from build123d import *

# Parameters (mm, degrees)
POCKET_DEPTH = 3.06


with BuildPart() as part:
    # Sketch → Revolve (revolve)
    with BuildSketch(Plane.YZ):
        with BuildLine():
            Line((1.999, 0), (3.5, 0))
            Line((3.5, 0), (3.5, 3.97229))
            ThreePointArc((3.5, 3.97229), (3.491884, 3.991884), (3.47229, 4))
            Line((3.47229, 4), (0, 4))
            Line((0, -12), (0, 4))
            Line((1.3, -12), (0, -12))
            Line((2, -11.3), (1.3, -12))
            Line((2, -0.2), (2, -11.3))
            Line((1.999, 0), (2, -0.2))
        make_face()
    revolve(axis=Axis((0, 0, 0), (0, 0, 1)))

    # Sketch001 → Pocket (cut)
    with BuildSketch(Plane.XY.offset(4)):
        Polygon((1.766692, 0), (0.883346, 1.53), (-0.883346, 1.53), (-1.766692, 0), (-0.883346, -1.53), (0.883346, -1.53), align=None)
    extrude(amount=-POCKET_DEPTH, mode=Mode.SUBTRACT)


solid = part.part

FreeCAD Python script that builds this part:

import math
import FreeCAD as App
import Part
import Sketcher

V = App.Vector
Q = App.Units.Quantity

doc = App.newDocument("Part")
body = doc.addObject("PartDesign::Body", "Body")

sketch1 = doc.addObject("Sketcher::SketchObject", "Sketch")
body.addObject(sketch1)
sketch1.AttachmentSupport = (doc.YZ_Plane, [""])
sketch1.MapMode = "FlatFace"
sketch1.addGeometry([
    Part.LineSegment(V(1.999, 0, 0), V(3.5, 0, 0)),
    Part.LineSegment(V(3.5, 0, 0), V(3.5, 3.972, 0)),
    Part.ArcOfCircle(Part.Circle(V(3.472, 3.972, 0), V(0, 0, 1), 0.028), math.radians(0), math.radians(90)),
    Part.LineSegment(V(3.472, 4, 0), V(0, 4, 0)),
    Part.LineSegment(V(0, 4, 0), V(0, -12, 0)),
    Part.LineSegment(V(0, -12, 0), V(1.3, -12, 0)),
    Part.LineSegment(V(1.3, -12, 0), V(2, -11.3, 0)),
    Part.LineSegment(V(2, -11.3, 0), V(2, -0.2, 0)),
    Part.LineSegment(V(2, -0.2, 0), V(1.999, 0, 0)),
], False)
sketch1.addConstraint([
    Sketcher.Constraint("Coincident", 0, 2, 1, 1),
    Sketcher.Constraint("Coincident", 1, 2, 2, 1),
    Sketcher.Constraint("Coincident", 2, 2, 3, 1),
    Sketcher.Constraint("Coincident", 3, 2, 4, 1),
    Sketcher.Constraint("Coincident", 4, 2, 5, 1),
    Sketcher.Constraint("Coincident", 5, 2, 6, 1),
    Sketcher.Constraint("Coincident", 6, 2, 7, 1),
    Sketcher.Constraint("Coincident", 7, 2, 8, 1),
    Sketcher.Constraint("Coincident", 8, 2, 0, 1),
    Sketcher.Constraint("Horizontal", 0),
    Sketcher.Constraint("Vertical", 1),
    Sketcher.Constraint("Horizontal", 3),
    Sketcher.Constraint("Vertical", 4),
    Sketcher.Constraint("Horizontal", 5),
    Sketcher.Constraint("Vertical", 7),
    Sketcher.Constraint("PointOnObject", 0, 2, -1),
    Sketcher.Constraint("PointOnObject", 3, 2, -2),
    Sketcher.Constraint("Horizontal", 2, 3, 1, 2),
    Sketcher.Constraint("DistanceY", 4, 2, 4, 1, 16.0),
    Sketcher.Constraint("Angle", 6, Q("45 deg")),
    Sketcher.Constraint("DistanceX", 5, 1, 5, 2, 1.3),
    Sketcher.Constraint("DistanceY", 7, 1, 7, 2, 11.1),
    Sketcher.Constraint("DistanceY", -1, 1, 2, 2, 4.0),
    Sketcher.Constraint("DistanceX", -1, 1, 6, 2, 2.0),
    Sketcher.Constraint("DistanceX", -1, 1, 0, 2, 3.5),
    Sketcher.Constraint("DistanceX", 0, 1, 0, 2, 1.501),
    Sketcher.Constraint("Radius", 2, 0.02771),
    Sketcher.Constraint("DistanceX", 3, 2, 3, 1, 3.47229),
])
revolution = doc.addObject("PartDesign::Revolution", "Revolution")
body.addObject(revolution)
revolution.Profile = sketch1
revolution.ReferenceAxis = (sketch1, ["V_Axis"])
revolution.Angle = 360

sketch2 = doc.addObject("Sketcher::SketchObject", "Sketch001")
body.addObject(sketch2)
sketch2.AttachmentSupport = (doc.XY_Plane, [""])
sketch2.MapMode = "FlatFace"
sketch2.AttachmentOffset = App.Placement(V(0, 0, 4), App.Rotation())
sketch2.addGeometry([
    Part.LineSegment(V(1.8, 0, 0), V(0.9, 1.5, 0)),
    Part.LineSegment(V(0.9, 1.5, 0), V(-0.9, 1.5, 0)),
    Part.LineSegment(V(-0.9, 1.5, 0), V(-1.8, 0, 0)),
    Part.LineSegment(V(-1.8, 0, 0), V(-0.9, -1.5, 0)),
    Part.LineSegment(V(-0.9, -1.5, 0), V(0.9, -1.5, 0)),
    Part.LineSegment(V(0.9, -1.5, 0), V(1.8, 0, 0)),
], False)
sketch2.addConstraint([
    Sketcher.Constraint("Coincident", 0, 2, 1, 1),
    Sketcher.Constraint("Coincident", 1, 2, 2, 1),
    Sketcher.Constraint("Coincident", 2, 2, 3, 1),
    Sketcher.Constraint("Coincident", 3, 2, 4, 1),
    Sketcher.Constraint("Coincident", 4, 2, 5, 1),
    Sketcher.Constraint("Coincident", 5, 2, 0, 1),
    Sketcher.Constraint("Horizontal", 1),
    Sketcher.Constraint("Horizontal", 4),
    Sketcher.Constraint("Symmetric", 0, 2, 3, 2, -1, 1),
    Sketcher.Constraint("Symmetric", 2, 2, 5, 2, -1, 1),
    Sketcher.Constraint("PointOnObject", 2, 2, -1),
    Sketcher.Constraint("Parallel", 2, 5),
    Sketcher.Constraint("Vertical", 1, 2, 3, 2),
    Sketcher.Constraint("Angle", 0, Q("120.000002 deg")),
    Sketcher.Constraint("DistanceY", -1, 1, 0, 2, 1.53),
    Sketcher.Constraint("DistanceX", 1, 2, 1, 1, 1.766692),
])
pocket1 = doc.addObject("PartDesign::Pocket", "Pocket")
body.addObject(pocket1)
pocket1.Profile = sketch2
pocket1.Length = 3.06

doc.recompute()
